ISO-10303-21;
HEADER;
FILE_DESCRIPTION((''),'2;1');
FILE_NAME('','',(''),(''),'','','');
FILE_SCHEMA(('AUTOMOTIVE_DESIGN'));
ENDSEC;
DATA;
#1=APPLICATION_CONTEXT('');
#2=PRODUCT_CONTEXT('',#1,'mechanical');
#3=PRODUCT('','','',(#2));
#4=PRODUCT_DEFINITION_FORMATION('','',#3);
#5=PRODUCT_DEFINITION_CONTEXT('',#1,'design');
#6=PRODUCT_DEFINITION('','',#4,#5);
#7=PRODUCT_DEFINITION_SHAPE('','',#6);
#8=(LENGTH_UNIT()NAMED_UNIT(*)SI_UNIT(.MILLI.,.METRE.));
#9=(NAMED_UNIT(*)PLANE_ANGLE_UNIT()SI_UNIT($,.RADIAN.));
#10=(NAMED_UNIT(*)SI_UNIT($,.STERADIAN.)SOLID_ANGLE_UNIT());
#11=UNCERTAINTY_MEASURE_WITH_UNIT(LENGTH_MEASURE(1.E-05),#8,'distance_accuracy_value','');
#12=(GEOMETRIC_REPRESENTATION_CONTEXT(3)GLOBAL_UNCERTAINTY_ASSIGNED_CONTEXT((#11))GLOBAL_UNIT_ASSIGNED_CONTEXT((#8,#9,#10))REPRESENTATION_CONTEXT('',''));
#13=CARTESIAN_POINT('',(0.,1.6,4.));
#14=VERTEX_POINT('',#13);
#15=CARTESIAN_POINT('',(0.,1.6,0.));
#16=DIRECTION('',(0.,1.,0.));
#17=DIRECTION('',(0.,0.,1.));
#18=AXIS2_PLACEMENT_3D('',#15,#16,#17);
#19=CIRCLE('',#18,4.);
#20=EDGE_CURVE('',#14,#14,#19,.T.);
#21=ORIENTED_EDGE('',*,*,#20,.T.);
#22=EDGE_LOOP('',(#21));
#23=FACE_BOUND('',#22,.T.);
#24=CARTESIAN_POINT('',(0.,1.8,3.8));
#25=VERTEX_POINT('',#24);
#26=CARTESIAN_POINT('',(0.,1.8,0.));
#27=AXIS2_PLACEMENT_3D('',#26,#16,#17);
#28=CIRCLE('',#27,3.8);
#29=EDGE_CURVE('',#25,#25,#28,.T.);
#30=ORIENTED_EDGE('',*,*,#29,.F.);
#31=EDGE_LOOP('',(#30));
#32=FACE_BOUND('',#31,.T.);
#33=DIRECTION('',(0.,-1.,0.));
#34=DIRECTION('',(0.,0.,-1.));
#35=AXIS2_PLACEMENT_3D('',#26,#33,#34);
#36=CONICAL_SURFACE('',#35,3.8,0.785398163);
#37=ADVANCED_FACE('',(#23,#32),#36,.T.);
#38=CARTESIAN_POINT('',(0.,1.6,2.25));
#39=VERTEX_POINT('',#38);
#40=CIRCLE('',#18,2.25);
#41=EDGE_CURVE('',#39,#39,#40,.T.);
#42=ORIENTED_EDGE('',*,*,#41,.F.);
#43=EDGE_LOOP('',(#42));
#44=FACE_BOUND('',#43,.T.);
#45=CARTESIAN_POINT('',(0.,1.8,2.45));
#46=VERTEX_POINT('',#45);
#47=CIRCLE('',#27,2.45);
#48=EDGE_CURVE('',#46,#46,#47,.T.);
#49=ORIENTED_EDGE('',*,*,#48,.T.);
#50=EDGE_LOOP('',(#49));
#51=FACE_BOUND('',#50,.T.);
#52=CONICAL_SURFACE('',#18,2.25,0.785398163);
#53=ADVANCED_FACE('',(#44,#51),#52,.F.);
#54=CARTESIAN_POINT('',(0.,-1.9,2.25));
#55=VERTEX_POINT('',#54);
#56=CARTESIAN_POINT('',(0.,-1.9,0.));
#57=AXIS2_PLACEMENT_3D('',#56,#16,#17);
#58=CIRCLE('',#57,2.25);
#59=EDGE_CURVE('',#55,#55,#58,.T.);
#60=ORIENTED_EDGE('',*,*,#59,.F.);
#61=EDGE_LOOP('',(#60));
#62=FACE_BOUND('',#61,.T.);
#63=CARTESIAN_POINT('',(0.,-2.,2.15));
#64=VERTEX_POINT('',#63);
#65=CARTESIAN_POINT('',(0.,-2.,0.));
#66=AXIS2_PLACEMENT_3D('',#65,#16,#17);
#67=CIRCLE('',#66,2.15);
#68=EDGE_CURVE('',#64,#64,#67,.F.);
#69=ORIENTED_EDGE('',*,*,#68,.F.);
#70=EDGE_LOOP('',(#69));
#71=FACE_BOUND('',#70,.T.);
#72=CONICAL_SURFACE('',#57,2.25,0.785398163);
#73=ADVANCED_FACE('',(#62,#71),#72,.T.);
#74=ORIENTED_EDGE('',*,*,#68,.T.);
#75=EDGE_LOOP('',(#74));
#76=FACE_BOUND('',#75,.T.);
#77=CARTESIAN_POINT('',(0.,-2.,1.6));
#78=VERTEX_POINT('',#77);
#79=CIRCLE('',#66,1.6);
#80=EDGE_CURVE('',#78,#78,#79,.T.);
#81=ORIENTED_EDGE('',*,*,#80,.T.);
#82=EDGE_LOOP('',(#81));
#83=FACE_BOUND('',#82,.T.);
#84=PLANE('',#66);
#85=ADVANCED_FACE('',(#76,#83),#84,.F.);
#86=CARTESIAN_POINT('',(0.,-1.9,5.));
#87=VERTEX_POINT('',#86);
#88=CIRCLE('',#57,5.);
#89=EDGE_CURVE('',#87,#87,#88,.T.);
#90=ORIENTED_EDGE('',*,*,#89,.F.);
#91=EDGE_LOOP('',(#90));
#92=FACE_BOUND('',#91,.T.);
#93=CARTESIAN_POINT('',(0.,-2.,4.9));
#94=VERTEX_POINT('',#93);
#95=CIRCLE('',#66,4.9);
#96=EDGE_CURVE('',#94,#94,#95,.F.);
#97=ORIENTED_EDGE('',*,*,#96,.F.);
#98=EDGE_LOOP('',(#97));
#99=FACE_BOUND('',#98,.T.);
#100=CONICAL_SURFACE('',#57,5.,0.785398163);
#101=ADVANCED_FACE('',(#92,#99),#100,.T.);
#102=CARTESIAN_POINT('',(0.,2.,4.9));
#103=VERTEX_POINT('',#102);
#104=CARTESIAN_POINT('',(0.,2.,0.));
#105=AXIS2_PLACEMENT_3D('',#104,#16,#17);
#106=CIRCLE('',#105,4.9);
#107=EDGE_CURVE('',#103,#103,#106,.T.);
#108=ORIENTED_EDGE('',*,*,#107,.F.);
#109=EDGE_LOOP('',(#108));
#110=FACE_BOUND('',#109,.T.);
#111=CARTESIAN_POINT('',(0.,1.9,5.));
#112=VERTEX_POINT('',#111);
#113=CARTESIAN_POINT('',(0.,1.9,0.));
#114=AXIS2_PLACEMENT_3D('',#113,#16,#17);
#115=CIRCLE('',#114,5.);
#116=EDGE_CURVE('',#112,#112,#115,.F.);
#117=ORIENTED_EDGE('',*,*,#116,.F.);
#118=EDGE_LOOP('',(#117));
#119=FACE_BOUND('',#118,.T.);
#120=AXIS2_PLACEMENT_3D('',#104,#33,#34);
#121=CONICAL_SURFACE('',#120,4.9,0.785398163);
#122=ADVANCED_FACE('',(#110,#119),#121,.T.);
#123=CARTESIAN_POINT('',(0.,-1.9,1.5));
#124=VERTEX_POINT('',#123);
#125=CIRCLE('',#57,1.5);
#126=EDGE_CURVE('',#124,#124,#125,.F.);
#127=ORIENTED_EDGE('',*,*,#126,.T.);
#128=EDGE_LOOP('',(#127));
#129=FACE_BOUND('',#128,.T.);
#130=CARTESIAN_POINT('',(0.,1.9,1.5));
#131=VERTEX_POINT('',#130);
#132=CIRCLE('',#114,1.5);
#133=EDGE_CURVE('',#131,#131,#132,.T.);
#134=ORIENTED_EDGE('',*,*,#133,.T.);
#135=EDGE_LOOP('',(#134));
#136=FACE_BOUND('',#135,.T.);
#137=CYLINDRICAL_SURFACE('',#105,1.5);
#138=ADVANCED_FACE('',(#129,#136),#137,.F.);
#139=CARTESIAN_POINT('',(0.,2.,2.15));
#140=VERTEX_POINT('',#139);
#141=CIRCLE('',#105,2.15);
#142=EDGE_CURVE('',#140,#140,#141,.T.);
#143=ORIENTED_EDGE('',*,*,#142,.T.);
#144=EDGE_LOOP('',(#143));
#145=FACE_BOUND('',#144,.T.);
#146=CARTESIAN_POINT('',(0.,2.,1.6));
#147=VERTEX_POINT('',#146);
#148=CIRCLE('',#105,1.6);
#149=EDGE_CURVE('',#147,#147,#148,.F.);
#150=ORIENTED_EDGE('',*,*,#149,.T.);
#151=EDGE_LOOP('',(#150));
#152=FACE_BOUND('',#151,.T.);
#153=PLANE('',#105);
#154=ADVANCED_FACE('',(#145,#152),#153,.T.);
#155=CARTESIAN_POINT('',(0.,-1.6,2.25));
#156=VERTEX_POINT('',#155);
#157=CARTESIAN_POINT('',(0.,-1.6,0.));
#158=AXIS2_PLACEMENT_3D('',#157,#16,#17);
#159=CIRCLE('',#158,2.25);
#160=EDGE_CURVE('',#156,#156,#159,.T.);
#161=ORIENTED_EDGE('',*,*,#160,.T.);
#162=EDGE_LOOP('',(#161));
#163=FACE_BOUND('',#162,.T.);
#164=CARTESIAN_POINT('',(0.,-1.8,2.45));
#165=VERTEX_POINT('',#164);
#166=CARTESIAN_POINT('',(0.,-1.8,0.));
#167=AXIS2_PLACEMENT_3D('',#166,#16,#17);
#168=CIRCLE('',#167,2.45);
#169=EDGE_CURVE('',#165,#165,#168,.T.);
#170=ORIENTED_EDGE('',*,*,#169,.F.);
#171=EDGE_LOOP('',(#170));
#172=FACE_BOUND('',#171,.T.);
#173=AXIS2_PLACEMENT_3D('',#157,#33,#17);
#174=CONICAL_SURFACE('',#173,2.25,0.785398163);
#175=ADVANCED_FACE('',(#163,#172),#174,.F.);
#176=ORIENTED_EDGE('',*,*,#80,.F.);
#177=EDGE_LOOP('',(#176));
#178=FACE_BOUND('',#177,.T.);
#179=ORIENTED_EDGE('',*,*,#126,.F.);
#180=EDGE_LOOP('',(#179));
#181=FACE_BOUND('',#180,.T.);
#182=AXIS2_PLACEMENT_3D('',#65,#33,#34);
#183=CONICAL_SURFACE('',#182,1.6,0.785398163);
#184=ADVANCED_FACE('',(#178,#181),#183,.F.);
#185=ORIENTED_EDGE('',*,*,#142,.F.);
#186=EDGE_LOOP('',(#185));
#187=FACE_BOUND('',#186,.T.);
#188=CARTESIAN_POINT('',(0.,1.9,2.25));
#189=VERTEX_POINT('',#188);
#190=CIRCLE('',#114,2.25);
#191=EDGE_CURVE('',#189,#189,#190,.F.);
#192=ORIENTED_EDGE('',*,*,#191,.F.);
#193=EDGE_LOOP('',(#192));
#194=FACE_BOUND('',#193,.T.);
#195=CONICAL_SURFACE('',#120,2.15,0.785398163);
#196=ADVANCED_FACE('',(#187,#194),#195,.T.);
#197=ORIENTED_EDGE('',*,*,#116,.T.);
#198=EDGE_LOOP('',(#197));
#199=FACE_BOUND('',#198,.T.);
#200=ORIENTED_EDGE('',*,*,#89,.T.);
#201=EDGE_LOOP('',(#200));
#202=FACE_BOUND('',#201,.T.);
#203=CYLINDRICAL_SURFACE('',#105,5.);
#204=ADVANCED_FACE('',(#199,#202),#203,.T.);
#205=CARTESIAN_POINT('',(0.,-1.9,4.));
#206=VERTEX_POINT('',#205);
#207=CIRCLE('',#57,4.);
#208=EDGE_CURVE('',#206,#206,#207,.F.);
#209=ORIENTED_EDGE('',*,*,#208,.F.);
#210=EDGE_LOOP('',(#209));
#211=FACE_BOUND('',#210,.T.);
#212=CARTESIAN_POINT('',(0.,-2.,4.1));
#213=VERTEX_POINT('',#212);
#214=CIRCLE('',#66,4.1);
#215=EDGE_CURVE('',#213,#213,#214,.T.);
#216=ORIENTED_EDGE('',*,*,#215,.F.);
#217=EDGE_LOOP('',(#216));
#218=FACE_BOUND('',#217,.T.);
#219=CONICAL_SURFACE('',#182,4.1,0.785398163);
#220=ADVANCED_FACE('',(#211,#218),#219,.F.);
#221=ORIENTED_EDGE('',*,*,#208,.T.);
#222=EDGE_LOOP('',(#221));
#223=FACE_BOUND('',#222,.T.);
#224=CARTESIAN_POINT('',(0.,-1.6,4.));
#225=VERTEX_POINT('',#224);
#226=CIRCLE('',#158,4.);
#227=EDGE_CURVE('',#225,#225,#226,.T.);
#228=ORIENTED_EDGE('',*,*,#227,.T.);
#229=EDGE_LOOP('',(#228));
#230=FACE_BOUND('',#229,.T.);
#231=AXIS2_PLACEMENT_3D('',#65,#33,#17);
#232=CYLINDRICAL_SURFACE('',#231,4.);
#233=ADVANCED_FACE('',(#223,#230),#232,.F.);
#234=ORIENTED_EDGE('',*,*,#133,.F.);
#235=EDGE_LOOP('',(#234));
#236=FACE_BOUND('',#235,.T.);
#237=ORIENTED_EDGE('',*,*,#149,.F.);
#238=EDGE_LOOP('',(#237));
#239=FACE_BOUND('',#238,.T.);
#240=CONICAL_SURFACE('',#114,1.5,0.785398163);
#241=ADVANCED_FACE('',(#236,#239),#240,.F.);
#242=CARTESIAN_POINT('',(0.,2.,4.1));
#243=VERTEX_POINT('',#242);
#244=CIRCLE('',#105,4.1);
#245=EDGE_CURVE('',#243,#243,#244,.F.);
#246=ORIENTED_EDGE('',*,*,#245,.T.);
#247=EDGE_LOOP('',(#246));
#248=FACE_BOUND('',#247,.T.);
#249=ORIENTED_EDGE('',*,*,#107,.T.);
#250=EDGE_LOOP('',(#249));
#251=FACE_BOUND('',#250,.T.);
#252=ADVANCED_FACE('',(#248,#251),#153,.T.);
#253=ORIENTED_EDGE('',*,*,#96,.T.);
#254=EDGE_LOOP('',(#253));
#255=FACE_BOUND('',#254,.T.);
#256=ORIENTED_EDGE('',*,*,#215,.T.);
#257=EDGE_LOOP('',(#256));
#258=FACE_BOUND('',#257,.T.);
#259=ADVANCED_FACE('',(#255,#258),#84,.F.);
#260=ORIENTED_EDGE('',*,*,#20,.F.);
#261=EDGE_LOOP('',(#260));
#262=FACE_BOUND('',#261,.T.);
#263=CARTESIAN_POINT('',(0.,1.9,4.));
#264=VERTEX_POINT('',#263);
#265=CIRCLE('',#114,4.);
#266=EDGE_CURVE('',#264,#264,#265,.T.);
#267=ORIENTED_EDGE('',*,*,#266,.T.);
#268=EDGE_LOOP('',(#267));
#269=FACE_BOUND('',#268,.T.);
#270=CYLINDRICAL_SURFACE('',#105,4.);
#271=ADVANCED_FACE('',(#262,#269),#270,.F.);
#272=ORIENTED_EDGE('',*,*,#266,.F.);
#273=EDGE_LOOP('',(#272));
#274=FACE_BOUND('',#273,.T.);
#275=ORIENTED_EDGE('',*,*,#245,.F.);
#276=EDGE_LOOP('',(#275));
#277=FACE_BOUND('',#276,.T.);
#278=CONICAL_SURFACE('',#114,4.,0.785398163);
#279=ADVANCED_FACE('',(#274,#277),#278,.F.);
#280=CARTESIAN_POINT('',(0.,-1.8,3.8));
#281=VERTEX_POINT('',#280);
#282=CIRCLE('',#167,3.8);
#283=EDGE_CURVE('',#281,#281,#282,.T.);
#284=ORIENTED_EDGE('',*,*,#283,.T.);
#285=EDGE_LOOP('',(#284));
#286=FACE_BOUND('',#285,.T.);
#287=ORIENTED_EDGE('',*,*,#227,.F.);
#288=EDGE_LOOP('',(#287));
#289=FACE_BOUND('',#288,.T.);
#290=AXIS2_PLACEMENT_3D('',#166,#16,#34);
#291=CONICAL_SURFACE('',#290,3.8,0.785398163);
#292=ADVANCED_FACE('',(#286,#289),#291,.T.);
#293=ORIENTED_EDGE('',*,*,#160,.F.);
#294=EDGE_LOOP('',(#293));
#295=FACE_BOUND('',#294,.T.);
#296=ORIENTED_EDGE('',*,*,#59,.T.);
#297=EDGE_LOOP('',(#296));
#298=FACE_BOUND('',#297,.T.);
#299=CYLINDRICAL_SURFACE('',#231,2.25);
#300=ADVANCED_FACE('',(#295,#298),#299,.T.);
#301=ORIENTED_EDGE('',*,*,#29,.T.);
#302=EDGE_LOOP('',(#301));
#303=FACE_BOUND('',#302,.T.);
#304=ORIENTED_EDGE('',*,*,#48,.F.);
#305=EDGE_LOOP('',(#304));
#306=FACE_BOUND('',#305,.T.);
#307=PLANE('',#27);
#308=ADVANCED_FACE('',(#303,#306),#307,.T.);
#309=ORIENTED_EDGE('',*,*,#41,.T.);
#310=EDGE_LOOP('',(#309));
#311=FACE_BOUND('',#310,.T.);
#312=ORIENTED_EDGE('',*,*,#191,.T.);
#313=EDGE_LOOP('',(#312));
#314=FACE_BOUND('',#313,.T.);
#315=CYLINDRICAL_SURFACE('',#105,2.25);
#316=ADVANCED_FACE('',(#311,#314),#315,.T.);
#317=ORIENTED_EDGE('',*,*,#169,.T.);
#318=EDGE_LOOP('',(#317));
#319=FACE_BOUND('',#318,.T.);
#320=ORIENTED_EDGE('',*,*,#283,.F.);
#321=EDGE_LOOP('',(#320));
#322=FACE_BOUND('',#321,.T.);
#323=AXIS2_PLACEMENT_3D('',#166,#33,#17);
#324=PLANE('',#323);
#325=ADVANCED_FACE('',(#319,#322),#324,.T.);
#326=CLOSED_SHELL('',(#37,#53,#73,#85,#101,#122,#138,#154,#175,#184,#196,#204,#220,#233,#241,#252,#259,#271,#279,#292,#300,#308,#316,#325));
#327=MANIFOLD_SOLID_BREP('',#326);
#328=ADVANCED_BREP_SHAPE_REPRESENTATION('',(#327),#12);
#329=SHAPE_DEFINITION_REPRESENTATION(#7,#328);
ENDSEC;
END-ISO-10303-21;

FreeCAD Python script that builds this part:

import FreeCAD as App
import Part
import Sketcher


def edges_at(feature, points):
    """Names of the edges that pass closest to the given points."""
    edges = feature.Shape.Edges
    near = lambda p: min(range(len(edges)), key=lambda i: edges[i].distToShape(Part.Vertex(*p))[0])
    return sorted({f"Edge{near(p) + 1}" for p in points})

doc = App.newDocument("Part")
params = doc.addObject("Spreadsheet::Sheet", "Params")
for row, (alias, value) in enumerate([
    ("sketch1_width", "4 mm"),
    ("sketch1_height", "3.5 mm"),
    ("revolution_angle", "360 deg"),
    ("sketch2_width", "0.4 mm"),
    ("sketch2_height", "1.75 mm"),
    ("sketch2_height2", "1.35 mm"),
    ("groove_angle", "360 deg"),
    ("chamfer_size", "0.1 mm"),
], start=1):
    params.set(f"A{row}", alias)
    params.set(f"B{row}", "=" + value)
    params.setAlias(f"B{row}", alias)

body = doc.addObject("PartDesign::Body", "Body")

# Sketch on YZ plane
sketch1 = body.newObject("Sketcher::SketchObject", "Sketch")
sketch1.AttachmentSupport = (doc.getObject("YZ_Plane"), [""])
sketch1.MapMode = "FlatFace"
sketch1.addGeometry([
    Part.LineSegment(App.Vector(2, -1.5, 0), App.Vector(-2, -1.5, 0)),
    Part.LineSegment(App.Vector(-2, -1.5, 0), App.Vector(-2, -5, 0)),
    Part.LineSegment(App.Vector(-2, -5, 0), App.Vector(2, -5, 0)),
    Part.LineSegment(App.Vector(2, -5, 0), App.Vector(2, -1.5, 0)),
], False)
sketch1.addConstraint([
    Sketcher.Constraint("Coincident", 0, 2, 1, 1),
    Sketcher.Constraint("Coincident", 1, 2, 2, 1),
    Sketcher.Constraint("Coincident", 2, 2, 3, 1),
    Sketcher.Constraint("Coincident", 3, 2, 0, 1),
    Sketcher.Constraint("Horizontal", 0),
    Sketcher.Constraint("Vertical", 1),
    Sketcher.Constraint("Horizontal", 2),
    Sketcher.Constraint("Vertical", 3),
    Sketcher.Constraint("DistanceX", 0, 2, 0, 1, 4.0),
    Sketcher.Constraint("DistanceY", 1, 2, 1, 1, 3.5),
    Sketcher.Constraint("DistanceX", 0, 2, -1, 1, 2.0),
    Sketcher.Constraint("DistanceY", 1, 2, -1, 1, 5.0),
])
sketch1.setExpression("Constraints[8]", "Params.sketch1_width")
sketch1.setExpression("Constraints[9]", "Params.sketch1_height")
revolution = body.newObject("PartDesign::Revolution", "Revolution")
revolution.Profile = sketch1
revolution.ReferenceAxis = (sketch1, ["H_Axis"])
revolution.setExpression("Angle", "Params.revolution_angle")

# Sketch on YZ plane
sketch2 = body.newObject("Sketcher::SketchObject", "Sketch001")
sketch2.AttachmentSupport = (doc.getObject("YZ_Plane"), [""])
sketch2.MapMode = "FlatFace"
sketch2.addGeometry([
    Part.LineSegment(App.Vector(1.8, -3.8, 0), App.Vector(1.6, -4, 0)),  # 0
    Part.LineSegment(App.Vector(1.6, -4, 0), App.Vector(2, -4, 0)),  # 1
    Part.LineSegment(App.Vector(2, -4, 0), App.Vector(2, -2.25, 0)),  # 2
    Part.LineSegment(App.Vector(2, -2.25, 0), App.Vector(1.6, -2.25, 0)),  # 3
    Part.LineSegment(App.Vector(1.6, -2.25, 0), App.Vector(1.8, -2.45, 0)),  # 4
    Part.LineSegment(App.Vector(1.8, -2.45, 0), App.Vector(1.8, -3.8, 0)),  # 5
], False)
sketch2.addConstraint([
    Sketcher.Constraint("Coincident", 0, 2, 1, 1),
    Sketcher.Constraint("Coincident", 1, 2, 2, 1),
    Sketcher.Constraint("Coincident", 2, 2, 3, 1),
    Sketcher.Constraint("Coincident", 3, 2, 4, 1),
    Sketcher.Constraint("Coincident", 4, 2, 5, 1),
    Sketcher.Constraint("Coincident", 5, 2, 0, 1),
    Sketcher.Constraint("Horizontal", 1),
    Sketcher.Constraint("Vertical", 2),
    Sketcher.Constraint("Horizontal", 3),
    Sketcher.Constraint("Vertical", 5),
    Sketcher.Constraint("Perpendicular", 0, 4),
    Sketcher.Constraint("Vertical", 0, 2, 3, 2),
    Sketcher.Constraint("Equal", 0, 4),
    Sketcher.Constraint("DistanceX", 1, 1, 1, 2, 0.4),
    Sketcher.Constraint("DistanceY", 0, 2, -1, 1, 4.0),
    Sketcher.Constraint("DistanceX", -1, 1, 1, 2, 2.0),
    Sketcher.Constraint("DistanceY", 2, 1, 2, 2, 1.75),
    Sketcher.Constraint("DistanceY", 5, 2, 5, 1, 1.35),
])
sketch2.setExpression("Constraints[13]", "Params.sketch2_width")
sketch2.setExpression("Constraints[16]", "Params.sketch2_height")
sketch2.setExpression("Constraints[17]", "Params.sketch2_height2")
groove = body.newObject("PartDesign::Groove", "Groove")
groove.Profile = sketch2
groove.ReferenceAxis = (sketch2, ["H_Axis"])
groove.setExpression("Angle", "Params.groove_angle")
doc.recompute()

mirrored = body.newObject("PartDesign::Mirrored", "Mirrored")
mirrored.Originals = [groove]
mirrored.MirrorPlane = (doc.getObject("XZ_Plane"), [""])
body.Tip = mirrored
doc.recompute()

chamfer = body.newObject("PartDesign::Chamfer", "Chamfer")
chamfer.Base = (mirrored, edges_at(mirrored, [
    (0, 2, 4),
    (0, 2, 2.25),
    (0, -2, 4),
    (0, -2, 2.25),
    (0, 2, 5),
    (0, -2, 5),
    (0, -2, 1.5),
    (0, 2, 1.5),
]))
chamfer.setExpression("Size", "Params.chamfer_size")

doc.recompute()
